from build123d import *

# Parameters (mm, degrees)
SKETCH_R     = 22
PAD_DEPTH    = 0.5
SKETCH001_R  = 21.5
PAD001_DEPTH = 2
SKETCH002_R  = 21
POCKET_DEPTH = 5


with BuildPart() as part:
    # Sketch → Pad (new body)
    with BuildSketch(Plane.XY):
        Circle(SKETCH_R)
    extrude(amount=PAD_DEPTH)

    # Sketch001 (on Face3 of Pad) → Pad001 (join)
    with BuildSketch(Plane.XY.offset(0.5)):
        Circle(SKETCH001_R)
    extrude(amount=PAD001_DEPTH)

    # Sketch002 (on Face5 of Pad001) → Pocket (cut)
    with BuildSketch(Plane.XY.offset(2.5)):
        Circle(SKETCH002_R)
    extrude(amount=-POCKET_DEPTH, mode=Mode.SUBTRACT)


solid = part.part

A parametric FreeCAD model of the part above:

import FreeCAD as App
import Part
import Sketcher

V = App.Vector

doc = App.newDocument("Part")
body = doc.addObject("PartDesign::Body", "Body")

sketch1 = body.newObject("Sketcher::SketchObject", "Sketch")
sketch1.AttachmentSupport = (doc.getObject("XY_Plane"), [""])
sketch1.MapMode = "FlatFace"
sketch1.addGeometry(Part.Circle(V(0, 0, 0), V(0, 0, 1), 22), False)
sketch1.addConstraint([
    Sketcher.Constraint("Coincident", 0, 3, -1, 1),
    Sketcher.Constraint("Diameter", 0, 44.0),
])
pad1 = body.newObject("PartDesign::Pad", "Pad")
pad1.Profile = sketch1
pad1.Length = 0.5

sketch2 = body.newObject("Sketcher::SketchObject", "Sketch001")
sketch2.AttachmentSupport = (doc.getObject("XY_Plane"), [""])
sketch2.MapMode = "FlatFace"
sketch2.AttachmentOffset = App.Placement(V(0, 0, 0.5), App.Rotation())
sketch2.addGeometry(Part.Circle(V(0, 0, 0), V(0, 0, 1), 21.5), False)
sketch2.addConstraint([
    Sketcher.Constraint("Coincident", 0, 3, -1, 1),
    Sketcher.Constraint("Diameter", 0, 43.0),
])
pad2 = body.newObject("PartDesign::Pad", "Pad001")
pad2.Profile = sketch2
pad2.Length = 2

sketch3 = body.newObject("Sketcher::SketchObject", "Sketch002")
sketch3.AttachmentSupport = (doc.getObject("XY_Plane"), [""])
sketch3.MapMode = "FlatFace"
sketch3.AttachmentOffset = App.Placement(V(0, 0, 2.5), App.Rotation())
sketch3.addGeometry(Part.Circle(V(0, 0, 0), V(0, 0, 1), 21), False)
sketch3.addConstraint([
    Sketcher.Constraint("Coincident", 0, 3, -1, 1),
    Sketcher.Constraint("Diameter", 0, 42.0),
])
pocket1 = body.newObject("PartDesign::Pocket", "Pocket")
pocket1.Profile = sketch3
pocket1.Length = 5

doc.recompute()
